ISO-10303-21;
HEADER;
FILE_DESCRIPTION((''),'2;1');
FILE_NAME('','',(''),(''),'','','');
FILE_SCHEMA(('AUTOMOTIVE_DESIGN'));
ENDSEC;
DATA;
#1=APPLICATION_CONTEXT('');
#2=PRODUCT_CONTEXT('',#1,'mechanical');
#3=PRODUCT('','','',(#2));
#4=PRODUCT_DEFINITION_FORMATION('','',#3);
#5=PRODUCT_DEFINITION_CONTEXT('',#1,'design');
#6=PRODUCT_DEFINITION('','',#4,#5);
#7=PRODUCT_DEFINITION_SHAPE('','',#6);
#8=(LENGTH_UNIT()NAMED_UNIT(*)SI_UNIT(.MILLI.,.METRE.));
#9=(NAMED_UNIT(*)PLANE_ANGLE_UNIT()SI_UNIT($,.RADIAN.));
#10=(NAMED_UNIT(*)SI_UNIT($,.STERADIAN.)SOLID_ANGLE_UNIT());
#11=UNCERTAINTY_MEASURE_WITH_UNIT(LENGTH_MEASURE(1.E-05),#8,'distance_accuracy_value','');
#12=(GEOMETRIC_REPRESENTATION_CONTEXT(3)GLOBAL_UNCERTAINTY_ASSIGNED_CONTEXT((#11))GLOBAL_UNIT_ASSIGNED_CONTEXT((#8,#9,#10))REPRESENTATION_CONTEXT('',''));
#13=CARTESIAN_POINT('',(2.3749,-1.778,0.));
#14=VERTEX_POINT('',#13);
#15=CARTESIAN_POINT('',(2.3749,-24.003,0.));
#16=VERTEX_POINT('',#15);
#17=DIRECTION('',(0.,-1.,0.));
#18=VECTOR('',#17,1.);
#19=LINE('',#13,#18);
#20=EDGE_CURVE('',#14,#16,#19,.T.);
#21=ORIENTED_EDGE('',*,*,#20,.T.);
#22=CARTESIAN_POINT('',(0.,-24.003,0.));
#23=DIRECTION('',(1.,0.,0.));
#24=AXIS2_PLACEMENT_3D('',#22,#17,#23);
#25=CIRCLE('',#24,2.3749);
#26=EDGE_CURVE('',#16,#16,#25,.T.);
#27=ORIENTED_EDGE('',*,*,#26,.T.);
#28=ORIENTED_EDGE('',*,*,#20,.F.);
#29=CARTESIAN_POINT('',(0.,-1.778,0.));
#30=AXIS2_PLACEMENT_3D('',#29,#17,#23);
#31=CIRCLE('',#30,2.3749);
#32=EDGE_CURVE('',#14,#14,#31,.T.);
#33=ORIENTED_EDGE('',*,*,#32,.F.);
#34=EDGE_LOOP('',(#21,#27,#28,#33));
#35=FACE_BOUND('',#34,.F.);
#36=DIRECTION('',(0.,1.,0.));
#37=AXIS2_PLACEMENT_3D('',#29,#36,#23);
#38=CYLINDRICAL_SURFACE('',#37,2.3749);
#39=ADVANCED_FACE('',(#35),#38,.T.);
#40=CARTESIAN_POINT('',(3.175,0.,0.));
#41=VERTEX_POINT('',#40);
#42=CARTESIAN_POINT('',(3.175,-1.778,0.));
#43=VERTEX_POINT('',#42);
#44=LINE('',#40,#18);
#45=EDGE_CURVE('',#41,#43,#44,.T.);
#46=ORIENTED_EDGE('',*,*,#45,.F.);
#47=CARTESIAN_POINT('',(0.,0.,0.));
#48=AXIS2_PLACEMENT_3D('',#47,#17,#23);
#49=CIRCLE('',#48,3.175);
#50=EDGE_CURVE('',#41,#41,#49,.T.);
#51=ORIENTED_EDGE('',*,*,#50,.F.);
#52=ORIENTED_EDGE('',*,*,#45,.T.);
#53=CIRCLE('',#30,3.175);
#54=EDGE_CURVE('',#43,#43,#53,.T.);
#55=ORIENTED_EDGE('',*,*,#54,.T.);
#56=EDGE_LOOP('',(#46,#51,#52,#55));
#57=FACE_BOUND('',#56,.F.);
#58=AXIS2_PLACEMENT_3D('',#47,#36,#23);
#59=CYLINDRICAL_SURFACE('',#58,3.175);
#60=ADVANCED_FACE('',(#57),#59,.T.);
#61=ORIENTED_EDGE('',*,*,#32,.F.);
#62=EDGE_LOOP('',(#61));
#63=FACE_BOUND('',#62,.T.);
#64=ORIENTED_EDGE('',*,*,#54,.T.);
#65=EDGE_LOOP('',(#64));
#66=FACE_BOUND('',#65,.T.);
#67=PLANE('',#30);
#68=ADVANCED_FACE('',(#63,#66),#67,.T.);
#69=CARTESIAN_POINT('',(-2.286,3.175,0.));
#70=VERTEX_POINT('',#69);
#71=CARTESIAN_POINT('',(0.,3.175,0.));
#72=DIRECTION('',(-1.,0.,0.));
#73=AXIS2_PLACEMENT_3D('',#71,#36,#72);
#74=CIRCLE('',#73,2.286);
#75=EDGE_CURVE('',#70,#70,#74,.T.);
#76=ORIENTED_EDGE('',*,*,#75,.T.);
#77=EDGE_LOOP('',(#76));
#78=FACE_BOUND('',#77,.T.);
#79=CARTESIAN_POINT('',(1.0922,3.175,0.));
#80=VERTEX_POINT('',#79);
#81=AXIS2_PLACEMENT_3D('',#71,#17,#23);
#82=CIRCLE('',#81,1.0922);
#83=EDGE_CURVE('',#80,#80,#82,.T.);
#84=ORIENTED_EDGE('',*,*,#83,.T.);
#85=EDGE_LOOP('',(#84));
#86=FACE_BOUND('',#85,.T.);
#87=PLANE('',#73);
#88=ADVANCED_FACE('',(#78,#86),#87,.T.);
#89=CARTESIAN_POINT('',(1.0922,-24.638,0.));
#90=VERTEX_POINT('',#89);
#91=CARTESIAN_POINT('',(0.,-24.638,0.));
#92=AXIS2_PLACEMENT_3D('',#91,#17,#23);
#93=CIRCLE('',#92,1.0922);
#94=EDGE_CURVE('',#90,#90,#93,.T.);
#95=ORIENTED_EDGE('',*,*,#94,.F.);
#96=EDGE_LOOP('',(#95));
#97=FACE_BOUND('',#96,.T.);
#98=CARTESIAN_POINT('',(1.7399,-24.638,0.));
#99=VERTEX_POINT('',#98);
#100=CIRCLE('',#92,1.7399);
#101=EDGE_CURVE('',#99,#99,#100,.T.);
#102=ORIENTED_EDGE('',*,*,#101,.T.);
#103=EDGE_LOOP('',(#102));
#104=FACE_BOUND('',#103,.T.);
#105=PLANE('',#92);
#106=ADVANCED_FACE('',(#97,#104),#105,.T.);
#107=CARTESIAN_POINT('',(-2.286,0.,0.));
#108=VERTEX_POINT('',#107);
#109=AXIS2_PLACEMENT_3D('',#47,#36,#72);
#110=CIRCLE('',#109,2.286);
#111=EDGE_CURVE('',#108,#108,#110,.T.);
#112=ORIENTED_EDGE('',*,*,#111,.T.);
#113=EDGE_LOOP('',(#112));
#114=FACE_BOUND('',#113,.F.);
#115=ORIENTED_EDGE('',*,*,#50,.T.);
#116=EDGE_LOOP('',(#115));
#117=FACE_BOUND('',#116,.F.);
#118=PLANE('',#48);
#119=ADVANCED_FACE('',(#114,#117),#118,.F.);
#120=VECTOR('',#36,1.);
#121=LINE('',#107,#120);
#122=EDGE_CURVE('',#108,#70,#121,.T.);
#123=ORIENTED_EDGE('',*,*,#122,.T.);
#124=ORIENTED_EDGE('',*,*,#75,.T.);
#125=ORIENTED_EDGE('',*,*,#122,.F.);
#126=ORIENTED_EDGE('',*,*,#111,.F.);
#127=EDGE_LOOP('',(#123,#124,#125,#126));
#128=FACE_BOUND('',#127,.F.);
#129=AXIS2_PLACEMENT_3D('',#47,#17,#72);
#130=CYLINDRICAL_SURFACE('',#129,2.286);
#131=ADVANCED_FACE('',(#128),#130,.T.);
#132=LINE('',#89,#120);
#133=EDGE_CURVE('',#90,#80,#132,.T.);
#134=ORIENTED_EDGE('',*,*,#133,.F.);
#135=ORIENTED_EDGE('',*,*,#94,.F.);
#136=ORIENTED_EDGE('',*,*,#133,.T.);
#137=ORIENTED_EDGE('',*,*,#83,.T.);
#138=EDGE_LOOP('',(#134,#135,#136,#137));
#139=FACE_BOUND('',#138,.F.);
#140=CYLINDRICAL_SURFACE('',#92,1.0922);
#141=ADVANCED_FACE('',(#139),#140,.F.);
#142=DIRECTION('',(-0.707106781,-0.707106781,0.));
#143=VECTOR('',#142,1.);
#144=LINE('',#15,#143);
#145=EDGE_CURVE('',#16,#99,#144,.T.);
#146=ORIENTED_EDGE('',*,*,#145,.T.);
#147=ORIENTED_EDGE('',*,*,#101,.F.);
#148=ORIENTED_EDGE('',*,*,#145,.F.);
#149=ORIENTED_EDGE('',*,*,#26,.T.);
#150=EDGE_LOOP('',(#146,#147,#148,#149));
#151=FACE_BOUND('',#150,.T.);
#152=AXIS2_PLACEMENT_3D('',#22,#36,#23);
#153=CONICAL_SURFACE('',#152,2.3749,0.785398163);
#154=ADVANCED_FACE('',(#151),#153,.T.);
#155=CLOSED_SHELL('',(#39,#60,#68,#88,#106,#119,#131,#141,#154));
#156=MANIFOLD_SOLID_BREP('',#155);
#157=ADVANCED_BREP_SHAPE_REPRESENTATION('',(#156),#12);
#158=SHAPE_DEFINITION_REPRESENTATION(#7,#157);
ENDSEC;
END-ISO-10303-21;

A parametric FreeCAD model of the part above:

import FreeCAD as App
import Part
import Sketcher
from FreeCAD import Vector
Q = App.Units.Quantity


def edges_at(feature, points):
    """Names of the edges that pass closest to the given points."""
    edges = feature.Shape.Edges
    near = lambda p: min(range(len(edges)), key=lambda i: edges[i].distToShape(Part.Vertex(*p))[0])
    return sorted({f"Edge{near(p) + 1}" for p in points})

doc = App.newDocument("Part")
body = doc.addObject("PartDesign::Body", "Body")

sketch1 = doc.addObject("Sketcher::SketchObject", "Sketch")
body.addObject(sketch1)
sketch1.AttachmentSupport = (doc.XZ_Plane, [""])
sketch1.MapMode = "FlatFace"
sketch1.addGeometry(Part.Circle(Vector(0, 0, 0), Vector(0, 0, 1), 3.2), False)
sketch1.addConstraint([
    Sketcher.Constraint("Coincident", 0, 3, -1, 1),
    Sketcher.Constraint("Diameter", 0, Q("0.25 in")),
])
pad1 = doc.addObject("PartDesign::Pad", "Pad")
body.addObject(pad1)
pad1.Profile = sketch1
pad1.Length = Q("0.07 in")

sketch2 = doc.addObject("Sketcher::SketchObject", "Sketch001")
body.addObject(sketch2)
sketch2.AttachmentSupport = (doc.XZ_Plane, [""])
sketch2.MapMode = "FlatFace"
sketch2.AttachmentOffset = App.Placement(Vector(0, 0, 0.07 * 25.4), App.Rotation())
sketch2.addGeometry(Part.Circle(Vector(0, 0, 0), Vector(0, 0, 1), 2.4), False)
sketch2.addConstraint([
    Sketcher.Constraint("Coincident", 0, 3, -1, 1),
    Sketcher.Constraint("Diameter", 0, Q("0.187 in")),
])
pad2 = doc.addObject("PartDesign::Pad", "Pad001")
body.addObject(pad2)
pad2.Profile = sketch2
pad2.Length = Q("0.9 in")

sketch3 = doc.addObject("Sketcher::SketchObject", "Sketch002")
body.addObject(sketch3)
sketch3.AttachmentSupport = (doc.XZ_Plane, [""])
sketch3.MapMode = "FlatFace"
sketch3.addGeometry(Part.Circle(Vector(0, 0, 0), Vector(0, 0, 1), 2.3), False)
sketch3.addConstraint([
    Sketcher.Constraint("Coincident", 0, 3, -1, 1),
    Sketcher.Constraint("Diameter", 0, Q("0.18 in")),
])
pad3 = doc.addObject("PartDesign::Pad", "Pad002")
body.addObject(pad3)
pad3.Profile = sketch3
pad3.Length = Q("0.125 in")
pad3.Reversed = True

sketch4 = doc.addObject("Sketcher::SketchObject", "Sketch003")
body.addObject(sketch4)
sketch4.AttachmentSupport = (doc.XZ_Plane, [""])
sketch4.MapMode = "FlatFace"
sketch4.AttachmentOffset = App.Placement(Vector(0, 0, 0.97 * 25.4), App.Rotation())
sketch4.addGeometry(Part.Circle(Vector(0, 0, 0), Vector(0, 0, 1), 1.1), False)
sketch4.addConstraint([
    Sketcher.Constraint("Coincident", 0, 3, -1, 1),
    Sketcher.Constraint("Diameter", 0, Q("0.086 in")),
])
pocket1 = doc.addObject("PartDesign::Pocket", "Pocket")
body.addObject(pocket1)
pocket1.Profile = sketch4
pocket1.Type = "ThroughAll"
doc.recompute()

chamfer = doc.addObject("PartDesign::Chamfer", "Chamfer")
body.addObject(chamfer)
chamfer.Base = (pocket1, edges_at(pocket1, [(-2.375, -24.638, 0)]))
chamfer.Size = Q("0.025 in")

doc.recompute()
